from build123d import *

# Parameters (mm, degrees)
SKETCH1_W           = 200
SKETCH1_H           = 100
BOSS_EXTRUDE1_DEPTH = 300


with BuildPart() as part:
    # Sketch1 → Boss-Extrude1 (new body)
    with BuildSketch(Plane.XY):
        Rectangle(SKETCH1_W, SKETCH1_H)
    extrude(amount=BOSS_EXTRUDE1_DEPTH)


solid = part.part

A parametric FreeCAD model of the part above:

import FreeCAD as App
import Part
import Sketcher
from FreeCAD import Vector
Q = App.Units.Quantity

doc = App.newDocument("Part")
body = doc.addObject("PartDesign::Body", "Body")

# Sketch on XY plane
sketch1 = doc.addObject("Sketcher::SketchObject", "Sketch")
body.addObject(sketch1)
sketch1.AttachmentSupport = (doc.XY_Plane, [""])
sketch1.MapMode = "FlatFace"
sketch1.addGeometry([
    Part.LineSegment(Vector(-100, 50, 0), Vector(-100, -50, 0)),
    Part.LineSegment(Vector(-100, -50, 0), Vector(100, -50, 0)),
    Part.LineSegment(Vector(100, -50, 0), Vector(100, 50, 0)),
    Part.LineSegment(Vector(100, 50, 0), Vector(-100, 50, 0)),
], False)
sketch1.addConstraint([
    Sketcher.Constraint("Coincident", 0, 2, 1, 1),
    Sketcher.Constraint("Coincident", 1, 2, 2, 1),
    Sketcher.Constraint("Coincident", 2, 2, 3, 1),
    Sketcher.Constraint("Coincident", 3, 2, 0, 1),
    Sketcher.Constraint("Vertical", 0),
    Sketcher.Constraint("Horizontal", 1),
    Sketcher.Constraint("Vertical", 2),
    Sketcher.Constraint("Horizontal", 3),
    Sketcher.Constraint("Symmetric", 0, 2, 2, 2, -1, 1),
    Sketcher.Constraint("DistanceX", 1, 1, 1, 2, Q("200 mm")),
    Sketcher.Constraint("DistanceY", 0, 2, 0, 1, Q("100 mm")),
])
pad1 = doc.addObject("PartDesign::Pad", "Pad")
body.addObject(pad1)
pad1.Profile = sketch1
pad1.Length = 300

doc.recompute()
